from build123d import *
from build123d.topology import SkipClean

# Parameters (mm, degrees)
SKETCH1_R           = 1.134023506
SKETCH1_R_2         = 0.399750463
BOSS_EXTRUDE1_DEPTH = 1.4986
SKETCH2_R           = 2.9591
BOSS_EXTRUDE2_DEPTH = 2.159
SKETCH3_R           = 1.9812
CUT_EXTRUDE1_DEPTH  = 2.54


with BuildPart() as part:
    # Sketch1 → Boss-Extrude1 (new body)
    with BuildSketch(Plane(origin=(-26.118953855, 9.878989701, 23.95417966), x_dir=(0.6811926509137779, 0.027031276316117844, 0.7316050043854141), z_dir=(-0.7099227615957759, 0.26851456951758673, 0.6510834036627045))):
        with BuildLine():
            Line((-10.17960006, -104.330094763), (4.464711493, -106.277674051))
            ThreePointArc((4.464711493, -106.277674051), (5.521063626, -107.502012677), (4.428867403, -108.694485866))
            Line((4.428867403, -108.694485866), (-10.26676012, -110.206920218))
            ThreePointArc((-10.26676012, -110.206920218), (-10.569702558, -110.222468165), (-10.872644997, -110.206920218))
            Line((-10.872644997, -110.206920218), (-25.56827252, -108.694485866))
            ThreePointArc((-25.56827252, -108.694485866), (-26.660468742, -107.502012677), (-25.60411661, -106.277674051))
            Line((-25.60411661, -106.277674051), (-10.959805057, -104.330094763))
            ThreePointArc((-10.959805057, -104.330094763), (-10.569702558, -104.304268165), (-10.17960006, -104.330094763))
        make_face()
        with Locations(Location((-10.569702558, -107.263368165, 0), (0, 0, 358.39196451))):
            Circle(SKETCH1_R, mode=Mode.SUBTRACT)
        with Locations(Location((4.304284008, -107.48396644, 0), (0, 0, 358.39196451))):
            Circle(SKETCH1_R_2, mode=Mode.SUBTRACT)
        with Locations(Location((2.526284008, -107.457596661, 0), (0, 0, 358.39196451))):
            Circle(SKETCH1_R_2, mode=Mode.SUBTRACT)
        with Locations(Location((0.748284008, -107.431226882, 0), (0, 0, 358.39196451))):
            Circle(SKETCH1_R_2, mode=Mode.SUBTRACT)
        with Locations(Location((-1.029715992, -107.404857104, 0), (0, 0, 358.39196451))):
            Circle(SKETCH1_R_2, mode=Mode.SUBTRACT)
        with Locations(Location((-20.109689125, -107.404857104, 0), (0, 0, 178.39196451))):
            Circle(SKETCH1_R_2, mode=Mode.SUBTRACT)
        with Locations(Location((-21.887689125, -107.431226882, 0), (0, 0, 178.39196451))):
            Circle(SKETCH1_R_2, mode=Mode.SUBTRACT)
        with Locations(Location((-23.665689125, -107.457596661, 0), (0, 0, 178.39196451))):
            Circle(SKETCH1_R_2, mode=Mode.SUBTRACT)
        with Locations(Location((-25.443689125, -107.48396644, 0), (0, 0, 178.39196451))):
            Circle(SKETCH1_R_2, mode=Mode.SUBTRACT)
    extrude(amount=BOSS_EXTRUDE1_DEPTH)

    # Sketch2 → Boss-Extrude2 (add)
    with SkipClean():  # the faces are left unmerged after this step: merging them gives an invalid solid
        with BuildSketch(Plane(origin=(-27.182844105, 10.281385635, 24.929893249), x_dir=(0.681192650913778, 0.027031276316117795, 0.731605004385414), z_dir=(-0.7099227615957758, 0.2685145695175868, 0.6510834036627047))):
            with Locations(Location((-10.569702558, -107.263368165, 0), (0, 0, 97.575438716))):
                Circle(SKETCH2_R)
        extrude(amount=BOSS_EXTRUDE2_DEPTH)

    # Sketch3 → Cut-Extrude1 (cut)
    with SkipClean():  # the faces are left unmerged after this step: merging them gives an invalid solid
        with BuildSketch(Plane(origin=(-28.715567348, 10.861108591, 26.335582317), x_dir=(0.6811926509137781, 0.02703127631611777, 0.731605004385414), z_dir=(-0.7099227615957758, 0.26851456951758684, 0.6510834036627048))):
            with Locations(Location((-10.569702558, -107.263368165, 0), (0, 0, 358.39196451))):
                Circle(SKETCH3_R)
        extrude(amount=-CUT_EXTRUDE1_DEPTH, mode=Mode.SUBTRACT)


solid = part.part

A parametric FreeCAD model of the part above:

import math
import FreeCAD as App
import Part
import Sketcher
Q = App.Units.Quantity

doc = App.newDocument("Part")
body = doc.addObject("PartDesign::Body", "Body")

# Sketch on an angled plane
sketch1 = body.newObject("Sketcher::SketchObject", "Sketch")
sketch1.Placement = App.Placement(App.Vector(-26.118954, 9.87899, 23.95418), App.Rotation(App.Vector(0.681192651, 0.027031276, 0.731605004), App.Vector(0.178846988, 0.962896275, -0.20210027), App.Vector(-0.709922762, 0.26851457, 0.651083404), "ZXY"))
sketch1.addGeometry(Part.LineSegment(App.Vector(4.46, -106.28, 0), App.Vector(-10.18, -104.33, 0)), False)
sketch1.addGeometry(Part.ArcOfCircle(Part.Circle(App.Vector(-10.57, -107.26, 0), App.Vector(0, 0, 1), 2.96), math.radians(82.42), math.radians(97.58)), False)
sketch1.addGeometry(Part.LineSegment(App.Vector(-10.96, -104.33, 0), App.Vector(-25.6, -106.28, 0)), False)
sketch1.addGeometry(Part.ArcOfCircle(Part.Circle(App.Vector(-25.44, -107.48, 0), App.Vector(0, 0, 1), 1.22), math.radians(98), math.radians(264)), False)
sketch1.addGeometry(Part.LineSegment(App.Vector(-25.57, -108.69, 0), App.Vector(-10.87, -110.21, 0)), False)
sketch1.addGeometry(Part.ArcOfCircle(Part.Circle(App.Vector(-10.57, -107.26, 0), App.Vector(0, 0, 1), 2.96), math.radians(-95.88), math.radians(-84.12)), False)
sketch1.addGeometry(Part.LineSegment(App.Vector(-10.27, -110.21, 0), App.Vector(4.43, -108.69, 0)), False)
sketch1.addGeometry(Part.ArcOfCircle(Part.Circle(App.Vector(4.3, -107.48, 0), App.Vector(0, 0, 1), 1.22), math.radians(-84), math.radians(82)), False)
sketch1.addGeometry(Part.Circle(App.Vector(4.3, -107.48, 0), App.Vector(0, 0, 1), 0.4), False)
sketch1.addGeometry(Part.Circle(App.Vector(2.53, -107.46, 0), App.Vector(0, 0, 1), 0.4), False)
sketch1.addGeometry(Part.Circle(App.Vector(0.75, -107.43, 0), App.Vector(0, 0, 1), 0.4), False)
sketch1.addGeometry(Part.Circle(App.Vector(-1.03, -107.4, 0), App.Vector(0, 0, 1), 0.4), False)
sketch1.addGeometry(Part.Circle(App.Vector(-21.89, -107.43, 0), App.Vector(0, 0, 1), 0.4), False)
sketch1.addGeometry(Part.Circle(App.Vector(-20.11, -107.4, 0), App.Vector(0, 0, 1), 0.4), False)
sketch1.addGeometry(Part.Circle(App.Vector(-23.67, -107.46, 0), App.Vector(0, 0, 1), 0.4), False)
sketch1.addGeometry(Part.Circle(App.Vector(-25.44, -107.48, 0), App.Vector(0, 0, 1), 0.4), False)
sketch1.addGeometry(Part.Circle(App.Vector(-10.57, -107.26, 0), App.Vector(0, 0, 1), 1.13), False)
sketch1.addConstraint(Sketcher.Constraint("Tangent", 0, 2, 1, 1))
sketch1.addConstraint(Sketcher.Constraint("Tangent", 1, 2, 2, 1))
sketch1.addConstraint(Sketcher.Constraint("Tangent", 2, 2, 3, 1))
sketch1.addConstraint(Sketcher.Constraint("Tangent", 3, 2, 4, 1))
sketch1.addConstraint(Sketcher.Constraint("Tangent", 4, 2, 5, 1))
sketch1.addConstraint(Sketcher.Constraint("Tangent", 5, 2, 6, 1))
sketch1.addConstraint(Sketcher.Constraint("Tangent", 6, 2, 7, 1))
sketch1.addConstraint(Sketcher.Constraint("Tangent", 7, 2, 0, 1))
sketch1.addConstraint(Sketcher.Constraint("Coincident", 5, 3, 1, 3))
sketch1.addConstraint(Sketcher.Constraint("Coincident", 8, 3, 7, 3))
sketch1.addConstraint(Sketcher.Constraint("Coincident", 15, 3, 3, 3))
sketch1.addConstraint(Sketcher.Constraint("Coincident", 16, 3, 1, 3))
sketch1.addConstraint(Sketcher.Constraint("Equal", 1, 5))
sketch1.addConstraint(Sketcher.Constraint("Equal", 3, 7))
sketch1.addConstraint(Sketcher.Constraint("Equal", 8, 9))
sketch1.addConstraint(Sketcher.Constraint("Equal", 9, 10))
sketch1.addConstraint(Sketcher.Constraint("Equal", 10, 11))
sketch1.addConstraint(Sketcher.Constraint("Equal", 11, 12))
sketch1.addConstraint(Sketcher.Constraint("Equal", 12, 13))
sketch1.addConstraint(Sketcher.Constraint("Equal", 13, 14))
sketch1.addConstraint(Sketcher.Constraint("Equal", 14, 15))
sketch1.addConstraint(Sketcher.Constraint("Horizontal", 3, 3, 7, 3))
sketch1.addConstraint(Sketcher.Constraint("Horizontal", 10, 3, 12, 3))
sketch1.addConstraint(Sketcher.Constraint("Horizontal", 11, 3, 13, 3))
sketch1.addConstraint(Sketcher.Constraint("Horizontal", 9, 3, 14, 3))
sketch1.addConstraint(Sketcher.Constraint("Horizontal", 0, 2, 1, 2))
sketch1.addConstraint(Sketcher.Constraint("Radius", 1, Q("0.1165 in")))
sketch1.addConstraint(Sketcher.Constraint("Diameter", 8, Q("0.799501 mm")))
sketch1.addConstraint(Sketcher.Constraint("DistanceX", 9, 3, 8, 3, Q("0.07 in")))
sketch1.addConstraint(Sketcher.Constraint("DistanceX", 10, 3, 9, 3, Q("0.07 in")))
sketch1.addConstraint(Sketcher.Constraint("DistanceX", 11, 3, 10, 3, Q("0.07 in")))
sketch1.addConstraint(Sketcher.Constraint("DistanceX", 3, 3, 12, 3, Q("0.14 in")))
sketch1.addConstraint(Sketcher.Constraint("DistanceX", 12, 3, 13, 3, Q("0.07 in")))
sketch1.addConstraint(Sketcher.Constraint("DistanceX", 3, 3, 14, 3, Q("0.07 in")))
sketch1.addConstraint(Sketcher.Constraint("Diameter", 16, Q("2.268047 mm")))
sketch1.addConstraint(Sketcher.Constraint("Radius", 3, Q("1.216913 mm")))
sketch1.addConstraint(Sketcher.Constraint("DistanceX", 0, 2, -1, 1, Q("10.1796 mm")))
sketch1.addConstraint(Sketcher.Constraint("DistanceY", 3, 3, 1, 3, Q("0.220598 mm")))
sketch1.addConstraint(Sketcher.Constraint("Distance", 0, Q("14.77325 mm")))
sketch1.addConstraint(Sketcher.Constraint("DistanceY", 1, 3, -1, 1, Q("107.263368 mm")))
sketch1.addConstraint(Sketcher.Constraint("DistanceY", 8, 3, 9, 3, Q("0.02637 mm")))
sketch1.addConstraint(Sketcher.Constraint("DistanceY", 9, 3, 10, 3, Q("0.02637 mm")))
sketch1.addConstraint(Sketcher.Constraint("DistanceY", 10, 3, 11, 3, Q("0.02637 mm")))
pad1 = body.newObject("PartDesign::Pad", "Pad")
pad1.Profile = sketch1
pad1.Length = Q("0.059 in")

# Sketch on an angled plane
sketch2 = body.newObject("Sketcher::SketchObject", "Sketch001")
sketch2.Placement = App.Placement(App.Vector(-27.182844, 10.281386, 24.929893), App.Rotation(App.Vector(0.681192651, 0.027031276, 0.731605004), App.Vector(0.178846988, 0.962896275, -0.20210027), App.Vector(-0.709922762, 0.26851457, 0.651083404), "ZXY"))
sketch2.addGeometry(Part.Circle(App.Vector(-10.6, -107.3, 0), App.Vector(0, 0, 1), 3), False)
sketch2.addConstraint(Sketcher.Constraint("Diameter", 0, Q("0.233 in")))
sketch2.addConstraint(Sketcher.Constraint("DistanceY", 0, 3, -1, 1, Q("107.263368 mm")))
sketch2.addConstraint(Sketcher.Constraint("DistanceX", 0, 3, -1, 1, Q("10.569703 mm")))
pad2 = body.newObject("PartDesign::Pad", "Pad001")
pad2.Profile = sketch2
pad2.Length = Q("0.085 in")

# Sketch on an angled plane
sketch3 = body.newObject("Sketcher::SketchObject", "Sketch002")
sketch3.Placement = App.Placement(App.Vector(-28.715567, 10.861109, 26.335582), App.Rotation(App.Vector(0.681192651, 0.027031276, 0.731605004), App.Vector(0.178846988, 0.962896275, -0.20210027), App.Vector(-0.709922762, 0.26851457, 0.651083404), "ZXY"))
sketch3.addGeometry(Part.Circle(App.Vector(-10.6, -107.3, 0), App.Vector(0, 0, 1), 2), False)
sketch3.addConstraint(Sketcher.Constraint("Diameter", 0, Q("0.156 in")))
sketch3.addConstraint(Sketcher.Constraint("DistanceY", 0, 3, -1, 1, Q("107.263368 mm")))
sketch3.addConstraint(Sketcher.Constraint("DistanceX", 0, 3, -1, 1, Q("10.569703 mm")))
pocket1 = body.newObject("PartDesign::Pocket", "Pocket")
pocket1.Profile = sketch3
pocket1.Length = Q("0.1 in")

doc.recompute()
